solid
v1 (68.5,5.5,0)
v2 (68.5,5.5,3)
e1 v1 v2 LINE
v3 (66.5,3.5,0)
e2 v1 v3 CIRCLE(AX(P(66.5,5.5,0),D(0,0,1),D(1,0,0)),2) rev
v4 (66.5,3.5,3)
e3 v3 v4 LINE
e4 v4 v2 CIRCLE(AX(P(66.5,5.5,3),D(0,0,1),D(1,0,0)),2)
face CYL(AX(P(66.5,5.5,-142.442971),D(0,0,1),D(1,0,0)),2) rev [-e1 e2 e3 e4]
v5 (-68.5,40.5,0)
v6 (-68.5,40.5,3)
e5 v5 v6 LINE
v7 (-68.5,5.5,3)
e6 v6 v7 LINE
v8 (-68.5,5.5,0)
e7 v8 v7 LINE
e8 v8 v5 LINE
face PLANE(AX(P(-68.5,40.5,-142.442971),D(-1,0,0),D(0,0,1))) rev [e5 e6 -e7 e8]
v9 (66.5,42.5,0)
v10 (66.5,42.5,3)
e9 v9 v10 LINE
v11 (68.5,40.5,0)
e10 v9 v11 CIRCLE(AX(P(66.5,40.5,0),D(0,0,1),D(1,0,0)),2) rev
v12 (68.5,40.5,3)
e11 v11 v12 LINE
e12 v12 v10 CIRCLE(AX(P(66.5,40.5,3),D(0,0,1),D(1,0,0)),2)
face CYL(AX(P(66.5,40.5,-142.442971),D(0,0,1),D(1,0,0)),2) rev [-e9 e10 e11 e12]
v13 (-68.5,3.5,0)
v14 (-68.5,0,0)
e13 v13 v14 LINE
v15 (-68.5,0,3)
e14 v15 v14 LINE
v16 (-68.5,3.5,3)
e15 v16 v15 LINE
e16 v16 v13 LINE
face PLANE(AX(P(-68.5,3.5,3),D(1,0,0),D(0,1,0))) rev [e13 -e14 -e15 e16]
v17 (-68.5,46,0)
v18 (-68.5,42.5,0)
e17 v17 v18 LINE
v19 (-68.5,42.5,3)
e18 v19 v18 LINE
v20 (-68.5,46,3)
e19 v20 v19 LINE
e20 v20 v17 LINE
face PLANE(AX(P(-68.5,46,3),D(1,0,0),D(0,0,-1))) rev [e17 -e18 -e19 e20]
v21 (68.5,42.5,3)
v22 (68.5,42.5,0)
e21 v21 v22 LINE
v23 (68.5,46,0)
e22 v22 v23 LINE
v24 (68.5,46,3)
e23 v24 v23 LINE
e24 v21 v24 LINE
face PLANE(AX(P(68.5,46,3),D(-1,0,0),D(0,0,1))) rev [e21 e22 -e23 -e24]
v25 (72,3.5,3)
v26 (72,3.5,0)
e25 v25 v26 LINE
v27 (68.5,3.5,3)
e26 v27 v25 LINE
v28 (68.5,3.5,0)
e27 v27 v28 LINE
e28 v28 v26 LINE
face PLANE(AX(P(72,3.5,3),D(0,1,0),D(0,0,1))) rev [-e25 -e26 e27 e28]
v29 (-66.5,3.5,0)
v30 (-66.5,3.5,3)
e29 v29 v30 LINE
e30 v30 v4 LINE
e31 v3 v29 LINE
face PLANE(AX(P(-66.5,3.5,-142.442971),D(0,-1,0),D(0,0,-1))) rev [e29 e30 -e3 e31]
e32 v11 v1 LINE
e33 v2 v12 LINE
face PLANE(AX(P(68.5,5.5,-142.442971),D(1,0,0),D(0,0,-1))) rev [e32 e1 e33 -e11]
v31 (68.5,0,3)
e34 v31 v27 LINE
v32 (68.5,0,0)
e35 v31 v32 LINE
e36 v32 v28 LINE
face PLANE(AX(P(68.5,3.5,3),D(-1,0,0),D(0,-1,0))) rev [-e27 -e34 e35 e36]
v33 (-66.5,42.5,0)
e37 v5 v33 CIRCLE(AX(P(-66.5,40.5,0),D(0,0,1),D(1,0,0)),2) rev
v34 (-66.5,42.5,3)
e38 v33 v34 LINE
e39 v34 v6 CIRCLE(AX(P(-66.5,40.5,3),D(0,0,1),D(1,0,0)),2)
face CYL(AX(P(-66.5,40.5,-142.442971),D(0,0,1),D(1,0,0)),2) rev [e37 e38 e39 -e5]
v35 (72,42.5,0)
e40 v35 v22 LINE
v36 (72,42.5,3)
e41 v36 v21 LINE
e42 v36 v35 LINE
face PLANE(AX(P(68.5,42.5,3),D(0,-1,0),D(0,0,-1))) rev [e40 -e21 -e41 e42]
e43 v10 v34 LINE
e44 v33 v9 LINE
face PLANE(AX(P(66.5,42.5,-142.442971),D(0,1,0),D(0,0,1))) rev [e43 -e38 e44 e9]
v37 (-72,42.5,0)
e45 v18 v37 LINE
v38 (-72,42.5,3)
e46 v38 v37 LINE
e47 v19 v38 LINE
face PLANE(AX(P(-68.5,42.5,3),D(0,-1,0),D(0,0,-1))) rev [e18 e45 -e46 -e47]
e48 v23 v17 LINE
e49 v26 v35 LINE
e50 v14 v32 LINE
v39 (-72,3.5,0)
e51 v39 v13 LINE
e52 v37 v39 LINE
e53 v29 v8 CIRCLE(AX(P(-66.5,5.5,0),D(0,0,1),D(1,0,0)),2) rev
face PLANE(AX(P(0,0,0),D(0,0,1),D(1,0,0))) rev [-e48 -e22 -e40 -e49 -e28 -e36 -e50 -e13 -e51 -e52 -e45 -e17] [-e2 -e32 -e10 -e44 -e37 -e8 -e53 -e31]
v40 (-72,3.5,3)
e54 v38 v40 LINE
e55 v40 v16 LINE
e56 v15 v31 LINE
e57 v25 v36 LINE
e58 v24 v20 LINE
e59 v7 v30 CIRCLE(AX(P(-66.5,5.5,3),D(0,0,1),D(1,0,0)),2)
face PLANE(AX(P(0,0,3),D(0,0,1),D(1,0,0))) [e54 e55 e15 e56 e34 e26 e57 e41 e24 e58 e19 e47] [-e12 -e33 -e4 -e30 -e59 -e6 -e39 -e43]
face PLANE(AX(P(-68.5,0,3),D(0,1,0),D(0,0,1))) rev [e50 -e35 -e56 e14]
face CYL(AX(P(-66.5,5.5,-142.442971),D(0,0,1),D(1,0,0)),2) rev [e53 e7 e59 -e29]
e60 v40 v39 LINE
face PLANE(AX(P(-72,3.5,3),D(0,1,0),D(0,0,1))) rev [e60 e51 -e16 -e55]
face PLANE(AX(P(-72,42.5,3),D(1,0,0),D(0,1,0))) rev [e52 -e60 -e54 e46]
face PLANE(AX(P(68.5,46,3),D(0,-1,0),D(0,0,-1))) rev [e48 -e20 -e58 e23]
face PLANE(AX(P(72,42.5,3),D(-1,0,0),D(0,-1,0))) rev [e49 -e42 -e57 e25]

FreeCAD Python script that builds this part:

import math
import FreeCAD as App
import Part
import Sketcher


def add_polygon(sketch, points):
    """Adds a closed chain of lines whose ends are joined by coincident constraints."""
    first, n = sketch.GeometryCount, len(points)
    for a, b in zip(points, points[1:] + points[:1]):
        sketch.addGeometry(Part.LineSegment(App.Vector(*a, 0), App.Vector(*b, 0)), False)
    for i in range(n):
        sketch.addConstraint(Sketcher.Constraint("Coincident", first + i, 2, first + (i + 1) % n, 1))

doc = App.newDocument("Part")
body = doc.addObject("PartDesign::Body", "Body")

# Sketch on XY plane
sketch1 = body.newObject("Sketcher::SketchObject", "Sketch")
sketch1.AttachmentSupport = (doc.getObject("XY_Plane"), [""])
sketch1.MapMode = "FlatFace"
add_polygon(sketch1, [(68.5, 46), (-68.5, 46), (-68.5, 42.5), (-72, 42.5), (-72, 3.5), (-68.5, 3.5), (-68.5, 0), (68.5, 0), (68.5, 3.5), (72, 3.5), (72, 42.5), (68.5, 42.5)])  # lines 0-11
sketch1.addConstraint(Sketcher.Constraint("Horizontal", 0))
sketch1.addConstraint(Sketcher.Constraint("Vertical", 1))
sketch1.addConstraint(Sketcher.Constraint("Horizontal", 2))
sketch1.addConstraint(Sketcher.Constraint("Vertical", 3))
sketch1.addConstraint(Sketcher.Constraint("Horizontal", 4))
sketch1.addConstraint(Sketcher.Constraint("Vertical", 5))
sketch1.addConstraint(Sketcher.Constraint("Horizontal", 6))
sketch1.addConstraint(Sketcher.Constraint("Vertical", 7))
sketch1.addConstraint(Sketcher.Constraint("Horizontal", 8))
sketch1.addConstraint(Sketcher.Constraint("Vertical", 9))
sketch1.addConstraint(Sketcher.Constraint("Horizontal", 10))
sketch1.addConstraint(Sketcher.Constraint("Vertical", 11))
sketch1.addConstraint(Sketcher.Constraint("Symmetric", 5, 2, 6, 2, -1, 1))
sketch1.addConstraint(Sketcher.Constraint("Symmetric", 3, 2, 8, 2, -2))
sketch1.addConstraint(Sketcher.Constraint("Symmetric", 1, 2, 10, 2, -2))
sketch1.addConstraint(Sketcher.Constraint("Vertical", 1, 2, 4, 2))
sketch1.addConstraint(Sketcher.Constraint("Equal", 10, 1))
sketch1.addConstraint(Sketcher.Constraint("Equal", 1, 5))
sketch1.addConstraint(Sketcher.Constraint("DistanceX", 0, 2, 0, 1, 137.0))
sketch1.addConstraint(Sketcher.Constraint("DistanceY", 3, 2, 3, 1, 39.0))
sketch1.addConstraint(Sketcher.Constraint("DistanceX", 2, 2, 2, 1, 3.5))
pad1 = body.newObject("PartDesign::Pad", "Pad")
pad1.Profile = sketch1
pad1.Length = 3

# Sketch on XY plane
sketch2 = body.newObject("Sketcher::SketchObject", "Sketch001")
sketch2.AttachmentSupport = (doc.getObject("XY_Plane"), [""])
sketch2.MapMode = "FlatFace"
sketch2.AttachmentOffset = App.Placement(App.Vector(0, 0, 3), App.Rotation())
sketch2.addGeometry(Part.LineSegment(App.Vector(68.5, 5.5, 0), App.Vector(68.5, 40.5, 0)), False)
sketch2.addGeometry(Part.ArcOfCircle(Part.Circle(App.Vector(66.5, 40.5, 0), App.Vector(0, 0, 1), 2), math.radians(0), math.radians(90)), False)
sketch2.addGeometry(Part.LineSegment(App.Vector(66.5, 42.5, 0), App.Vector(-66.5, 42.5, 0)), False)
sketch2.addGeometry(Part.ArcOfCircle(Part.Circle(App.Vector(-66.5, 40.5, 0), App.Vector(0, 0, 1), 2), math.radians(90), math.radians(180)), False)
sketch2.addGeometry(Part.LineSegment(App.Vector(-68.5, 40.5, 0), App.Vector(-68.5, 5.5, 0)), False)
sketch2.addGeometry(Part.ArcOfCircle(Part.Circle(App.Vector(-66.5, 5.5, 0), App.Vector(0, 0, 1), 2), math.radians(-180), math.radians(-90)), False)
sketch2.addGeometry(Part.LineSegment(App.Vector(-66.5, 3.5, 0), App.Vector(66.5, 3.5, 0)), False)
sketch2.addGeometry(Part.ArcOfCircle(Part.Circle(App.Vector(66.5, 5.5, 0), App.Vector(0, 0, 1), 2), math.radians(-90), math.radians(0)), False)
sketch2.addConstraint(Sketcher.Constraint("Tangent", 0, 2, 1, 1))
sketch2.addConstraint(Sketcher.Constraint("Tangent", 1, 2, 2, 1))
sketch2.addConstraint(Sketcher.Constraint("Tangent", 2, 2, 3, 1))
sketch2.addConstraint(Sketcher.Constraint("Tangent", 3, 2, 4, 1))
sketch2.addConstraint(Sketcher.Constraint("Tangent", 4, 2, 5, 1))
sketch2.addConstraint(Sketcher.Constraint("Tangent", 5, 2, 6, 1))
sketch2.addConstraint(Sketcher.Constraint("Tangent", 6, 2, 7, 1))
sketch2.addConstraint(Sketcher.Constraint("Tangent", 7, 2, 0, 1))
sketch2.addConstraint(Sketcher.Constraint("Vertical", 0))
sketch2.addConstraint(Sketcher.Constraint("Horizontal", 2))
sketch2.addConstraint(Sketcher.Constraint("Vertical", 4))
sketch2.addConstraint(Sketcher.Constraint("Horizontal", 6))
sketch2.addConstraint(Sketcher.Constraint("Equal", 1, 3))
sketch2.addConstraint(Sketcher.Constraint("Equal", 3, 5))
sketch2.addConstraint(Sketcher.Constraint("Equal", 5, 7))
sketch2.addConstraint(Sketcher.Constraint("Radius", 1, 2.0))
sketch2.addConstraint(Sketcher.Constraint("DistanceX", 2, 2, 2, 1, 133.0))
sketch2.addConstraint(Sketcher.Constraint("DistanceY", 0, 1, 0, 2, 35.0))
sketch2.addConstraint(Sketcher.Constraint("DistanceX", -1, 1, 1, 3, 66.5))
sketch2.addConstraint(Sketcher.Constraint("DistanceY", -1, 1, 1, 3, 40.5))
pocket1 = body.newObject("PartDesign::Pocket", "Pocket")
pocket1.Profile = sketch2
pocket1.Length = 3

doc.recompute()
